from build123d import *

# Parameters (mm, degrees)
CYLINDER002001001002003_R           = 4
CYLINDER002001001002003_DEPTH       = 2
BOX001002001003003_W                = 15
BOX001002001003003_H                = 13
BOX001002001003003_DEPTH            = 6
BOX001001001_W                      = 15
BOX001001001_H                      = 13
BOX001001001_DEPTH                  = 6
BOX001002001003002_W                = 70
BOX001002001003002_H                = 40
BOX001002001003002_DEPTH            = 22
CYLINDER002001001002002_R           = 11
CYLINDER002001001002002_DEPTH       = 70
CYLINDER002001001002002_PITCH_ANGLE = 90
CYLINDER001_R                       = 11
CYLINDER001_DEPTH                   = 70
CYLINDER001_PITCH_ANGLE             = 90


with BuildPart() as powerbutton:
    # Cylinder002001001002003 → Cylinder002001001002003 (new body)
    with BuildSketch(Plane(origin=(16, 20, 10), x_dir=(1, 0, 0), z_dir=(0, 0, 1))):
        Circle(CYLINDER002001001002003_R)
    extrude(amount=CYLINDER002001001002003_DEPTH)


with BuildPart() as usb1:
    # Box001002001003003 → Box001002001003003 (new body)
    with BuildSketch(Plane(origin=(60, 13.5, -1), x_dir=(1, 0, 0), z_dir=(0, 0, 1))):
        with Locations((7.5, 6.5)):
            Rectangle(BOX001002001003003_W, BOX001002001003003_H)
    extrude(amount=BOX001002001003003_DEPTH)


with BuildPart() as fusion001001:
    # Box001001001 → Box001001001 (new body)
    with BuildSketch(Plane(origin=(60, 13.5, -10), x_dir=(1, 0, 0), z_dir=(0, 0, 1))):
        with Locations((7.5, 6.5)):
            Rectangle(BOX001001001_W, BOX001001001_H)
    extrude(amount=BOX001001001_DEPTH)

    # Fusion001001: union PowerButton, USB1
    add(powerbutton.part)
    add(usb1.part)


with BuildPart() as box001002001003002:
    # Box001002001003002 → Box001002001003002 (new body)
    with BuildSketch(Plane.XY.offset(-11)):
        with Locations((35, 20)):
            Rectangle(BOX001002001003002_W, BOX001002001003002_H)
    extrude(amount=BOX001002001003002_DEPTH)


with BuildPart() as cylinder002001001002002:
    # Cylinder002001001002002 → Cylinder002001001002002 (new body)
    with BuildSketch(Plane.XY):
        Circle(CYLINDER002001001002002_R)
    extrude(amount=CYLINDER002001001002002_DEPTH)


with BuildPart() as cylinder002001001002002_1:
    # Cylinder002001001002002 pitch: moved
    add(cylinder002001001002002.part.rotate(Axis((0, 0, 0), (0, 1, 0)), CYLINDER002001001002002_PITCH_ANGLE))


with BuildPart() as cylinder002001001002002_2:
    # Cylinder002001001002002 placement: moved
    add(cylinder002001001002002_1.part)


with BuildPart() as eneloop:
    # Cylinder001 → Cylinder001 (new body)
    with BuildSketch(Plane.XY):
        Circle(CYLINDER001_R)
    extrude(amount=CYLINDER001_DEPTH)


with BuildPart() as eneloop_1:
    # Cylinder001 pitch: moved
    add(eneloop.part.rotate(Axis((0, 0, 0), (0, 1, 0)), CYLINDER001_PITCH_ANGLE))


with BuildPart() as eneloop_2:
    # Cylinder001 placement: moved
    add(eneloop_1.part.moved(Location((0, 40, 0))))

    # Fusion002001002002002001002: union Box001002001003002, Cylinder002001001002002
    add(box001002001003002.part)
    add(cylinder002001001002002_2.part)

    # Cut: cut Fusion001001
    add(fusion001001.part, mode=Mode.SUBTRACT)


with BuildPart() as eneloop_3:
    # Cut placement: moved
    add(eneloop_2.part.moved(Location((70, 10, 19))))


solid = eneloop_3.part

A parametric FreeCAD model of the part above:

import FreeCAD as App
import Part
import Sketcher
from FreeCAD import Vector
Q = App.Units.Quantity


def add_polygon(sketch, points):
    """Adds a closed chain of lines whose ends are joined by coincident constraints."""
    first, n = sketch.GeometryCount, len(points)
    for a, b in zip(points, points[1:] + points[:1]):
        sketch.addGeometry(Part.LineSegment(App.Vector(*a, 0), App.Vector(*b, 0)), False)
    for i in range(n):
        sketch.addConstraint(Sketcher.Constraint("Coincident", first + i, 2, first + (i + 1) % n, 1))

doc = App.newDocument("Part")
body = doc.addObject("PartDesign::Body", "Body")

# Sketch on XY plane
sketch1 = body.newObject("Sketcher::SketchObject", "Sketch")
sketch1.AttachmentSupport = (doc.getObject("XY_Plane"), [""])
sketch1.MapMode = "FlatFace"
sketch1.AttachmentOffset = App.Placement(Vector(0, 0, 10), App.Rotation())
sketch1.addGeometry(Part.Circle(Vector(16, 20, 0), Vector(0, 0, 1), 4), False)
sketch1.addConstraint(Sketcher.Constraint("Diameter", 0, Q("8 mm")))
sketch1.addConstraint(Sketcher.Constraint("DistanceX", -1, 1, 0, 3, Q("16 mm")))
sketch1.addConstraint(Sketcher.Constraint("DistanceY", -1, 1, 0, 3, Q("20 mm")))
pad1 = body.newObject("PartDesign::Pad", "Pad")
pad1.Profile = sketch1
pad1.Length = 2
body2 = doc.addObject("PartDesign::Body", "Body001")

# Sketch on XY plane
sketch2 = body2.newObject("Sketcher::SketchObject", "Sketch001")
sketch2.AttachmentSupport = (doc.getObject("XY_Plane001"), [""])
sketch2.MapMode = "FlatFace"
sketch2.AttachmentOffset = App.Placement(Vector(0, 0, -1), App.Rotation())
add_polygon(sketch2, [(60, 26), (60, 14), (75, 14), (75, 26)])  # lines 0-3
sketch2.addConstraint(Sketcher.Constraint("Vertical", 0))
sketch2.addConstraint(Sketcher.Constraint("Horizontal", 1))
sketch2.addConstraint(Sketcher.Constraint("Vertical", 2))
sketch2.addConstraint(Sketcher.Constraint("Horizontal", 3))
sketch2.addConstraint(Sketcher.Constraint("DistanceX", 1, 1, 1, 2, Q("15 mm")))
sketch2.addConstraint(Sketcher.Constraint("DistanceY", 0, 2, 0, 1, Q("13 mm")))
sketch2.addConstraint(Sketcher.Constraint("DistanceX", -1, 1, 0, 2, Q("60 mm")))
sketch2.addConstraint(Sketcher.Constraint("DistanceY", -1, 1, 0, 2, Q("13.5 mm")))
pad2 = body2.newObject("PartDesign::Pad", "Pad001")
pad2.Profile = sketch2
pad2.Length = 6
body3 = doc.addObject("PartDesign::Body", "Body002")
body3.AllowCompound = True

# Sketch on XY plane
sketch3 = body3.newObject("Sketcher::SketchObject", "Sketch002")
sketch3.AttachmentSupport = (doc.getObject("XY_Plane002"), [""])
sketch3.MapMode = "FlatFace"
sketch3.AttachmentOffset = App.Placement(Vector(0, 0, -10), App.Rotation())
add_polygon(sketch3, [(60, 26), (60, 14), (75, 14), (75, 26)])  # lines 0-3
sketch3.addConstraint(Sketcher.Constraint("Vertical", 0))
sketch3.addConstraint(Sketcher.Constraint("Horizontal", 1))
sketch3.addConstraint(Sketcher.Constraint("Vertical", 2))
sketch3.addConstraint(Sketcher.Constraint("Horizontal", 3))
sketch3.addConstraint(Sketcher.Constraint("DistanceX", 1, 1, 1, 2, Q("15 mm")))
sketch3.addConstraint(Sketcher.Constraint("DistanceY", 0, 2, 0, 1, Q("13 mm")))
sketch3.addConstraint(Sketcher.Constraint("DistanceX", -1, 1, 0, 2, Q("60 mm")))
sketch3.addConstraint(Sketcher.Constraint("DistanceY", -1, 1, 0, 2, Q("13.5 mm")))
pad3 = body3.newObject("PartDesign::Pad", "Pad002")
pad3.Profile = sketch3
pad3.Length = 6
doc.recompute()

boolean = body3.newObject("PartDesign::Boolean", "Boolean")
boolean.Type = "Fuse"
boolean.addObjects([body])
doc.recompute()

boolean2 = body3.newObject("PartDesign::Boolean", "Boolean001")
boolean2.Type = "Fuse"
boolean2.addObjects([body2])
body4 = doc.addObject("PartDesign::Body", "Body003")

# Sketch on XY plane
sketch4 = body4.newObject("Sketcher::SketchObject", "Sketch003")
sketch4.AttachmentSupport = (doc.getObject("XY_Plane003"), [""])
sketch4.MapMode = "FlatFace"
sketch4.AttachmentOffset = App.Placement(Vector(0, 0, -11), App.Rotation())
add_polygon(sketch4, [(0, 40), (0, 0), (70, 0), (70, 40)])  # lines 0-3
sketch4.addConstraint(Sketcher.Constraint("Vertical", 0))
sketch4.addConstraint(Sketcher.Constraint("Horizontal", 1))
sketch4.addConstraint(Sketcher.Constraint("Vertical", 2))
sketch4.addConstraint(Sketcher.Constraint("Horizontal", 3))
sketch4.addConstraint(Sketcher.Constraint("Coincident", 0, 2, -1, 1))
sketch4.addConstraint(Sketcher.Constraint("DistanceX", 1, 1, 1, 2, Q("70 mm")))
sketch4.addConstraint(Sketcher.Constraint("DistanceY", 0, 2, 0, 1, Q("40 mm")))
pad4 = body4.newObject("PartDesign::Pad", "Pad003")
pad4.Profile = sketch4
pad4.Length = 22
body5 = doc.addObject("PartDesign::Body", "Body004")

# Sketch on XY plane
sketch5 = body5.newObject("Sketcher::SketchObject", "Sketch004")
sketch5.AttachmentSupport = (doc.getObject("XY_Plane004"), [""])
sketch5.MapMode = "FlatFace"
sketch5.addGeometry(Part.Circle(Vector(0, 0, 0), Vector(0, 0, 1), 11), False)
sketch5.addConstraint(Sketcher.Constraint("Coincident", 0, 3, -1, 1))
sketch5.addConstraint(Sketcher.Constraint("Diameter", 0, Q("22 mm")))
pad5 = body5.newObject("PartDesign::Pad", "Pad004")
pad5.Profile = sketch5
pad5.Length = 70
body6 = doc.addObject("PartDesign::Body", "Body005")
doc.recompute()

body5.Placement = App.Placement(Vector(0, 0, 0), App.Rotation(Vector(0, 1, 0), 90))
boolean3 = body6.newObject("PartDesign::Boolean", "Boolean002")
boolean3.Type = "Fuse"
boolean3.addObjects([body5])
body7 = doc.addObject("PartDesign::Body", "Body006")

# Sketch on XY plane
sketch6 = body7.newObject("Sketcher::SketchObject", "Sketch005")
sketch6.AttachmentSupport = (doc.getObject("XY_Plane006"), [""])
sketch6.MapMode = "FlatFace"
sketch6.addGeometry(Part.Circle(Vector(0, 0, 0), Vector(0, 0, 1), 11), False)
sketch6.addConstraint(Sketcher.Constraint("Coincident", 0, 3, -1, 1))
sketch6.addConstraint(Sketcher.Constraint("Diameter", 0, Q("22 mm")))
pad6 = body7.newObject("PartDesign::Pad", "Pad005")
pad6.Profile = sketch6
pad6.Length = 70
body8 = doc.addObject("PartDesign::Body", "Body007")
doc.recompute()

body7.Placement = App.Placement(Vector(0, 0, 0), App.Rotation(Vector(0, 1, 0), 90))
boolean4 = body8.newObject("PartDesign::Boolean", "Boolean003")
boolean4.Type = "Fuse"
boolean4.addObjects([body7])
body9 = doc.addObject("PartDesign::Body", "Body008")
doc.recompute()

body8.Placement = App.Placement(Vector(0, 40, 0), App.Rotation(Vector(0, 0, 1), 0))
boolean5 = body9.newObject("PartDesign::Boolean", "Boolean004")
boolean5.Type = "Fuse"
boolean5.addObjects([body8])
doc.recompute()

boolean6 = body9.newObject("PartDesign::Boolean", "Boolean005")
boolean6.Type = "Fuse"
boolean6.addObjects([body4])
doc.recompute()

boolean7 = body9.newObject("PartDesign::Boolean", "Boolean006")
boolean7.Type = "Fuse"
boolean7.addObjects([body6])
doc.recompute()

boolean8 = body9.newObject("PartDesign::Boolean", "Boolean007")
boolean8.Type = "Cut"
boolean8.addObjects([body3])
body10 = doc.addObject("PartDesign::Body", "Body009")
doc.recompute()

body9.Placement = App.Placement(Vector(70, 10, 19), App.Rotation(Vector(0, 0, 1), 0))
boolean9 = body10.newObject("PartDesign::Boolean", "Boolean008")
boolean9.Type = "Fuse"
boolean9.addObjects([body9])

doc.recompute()
